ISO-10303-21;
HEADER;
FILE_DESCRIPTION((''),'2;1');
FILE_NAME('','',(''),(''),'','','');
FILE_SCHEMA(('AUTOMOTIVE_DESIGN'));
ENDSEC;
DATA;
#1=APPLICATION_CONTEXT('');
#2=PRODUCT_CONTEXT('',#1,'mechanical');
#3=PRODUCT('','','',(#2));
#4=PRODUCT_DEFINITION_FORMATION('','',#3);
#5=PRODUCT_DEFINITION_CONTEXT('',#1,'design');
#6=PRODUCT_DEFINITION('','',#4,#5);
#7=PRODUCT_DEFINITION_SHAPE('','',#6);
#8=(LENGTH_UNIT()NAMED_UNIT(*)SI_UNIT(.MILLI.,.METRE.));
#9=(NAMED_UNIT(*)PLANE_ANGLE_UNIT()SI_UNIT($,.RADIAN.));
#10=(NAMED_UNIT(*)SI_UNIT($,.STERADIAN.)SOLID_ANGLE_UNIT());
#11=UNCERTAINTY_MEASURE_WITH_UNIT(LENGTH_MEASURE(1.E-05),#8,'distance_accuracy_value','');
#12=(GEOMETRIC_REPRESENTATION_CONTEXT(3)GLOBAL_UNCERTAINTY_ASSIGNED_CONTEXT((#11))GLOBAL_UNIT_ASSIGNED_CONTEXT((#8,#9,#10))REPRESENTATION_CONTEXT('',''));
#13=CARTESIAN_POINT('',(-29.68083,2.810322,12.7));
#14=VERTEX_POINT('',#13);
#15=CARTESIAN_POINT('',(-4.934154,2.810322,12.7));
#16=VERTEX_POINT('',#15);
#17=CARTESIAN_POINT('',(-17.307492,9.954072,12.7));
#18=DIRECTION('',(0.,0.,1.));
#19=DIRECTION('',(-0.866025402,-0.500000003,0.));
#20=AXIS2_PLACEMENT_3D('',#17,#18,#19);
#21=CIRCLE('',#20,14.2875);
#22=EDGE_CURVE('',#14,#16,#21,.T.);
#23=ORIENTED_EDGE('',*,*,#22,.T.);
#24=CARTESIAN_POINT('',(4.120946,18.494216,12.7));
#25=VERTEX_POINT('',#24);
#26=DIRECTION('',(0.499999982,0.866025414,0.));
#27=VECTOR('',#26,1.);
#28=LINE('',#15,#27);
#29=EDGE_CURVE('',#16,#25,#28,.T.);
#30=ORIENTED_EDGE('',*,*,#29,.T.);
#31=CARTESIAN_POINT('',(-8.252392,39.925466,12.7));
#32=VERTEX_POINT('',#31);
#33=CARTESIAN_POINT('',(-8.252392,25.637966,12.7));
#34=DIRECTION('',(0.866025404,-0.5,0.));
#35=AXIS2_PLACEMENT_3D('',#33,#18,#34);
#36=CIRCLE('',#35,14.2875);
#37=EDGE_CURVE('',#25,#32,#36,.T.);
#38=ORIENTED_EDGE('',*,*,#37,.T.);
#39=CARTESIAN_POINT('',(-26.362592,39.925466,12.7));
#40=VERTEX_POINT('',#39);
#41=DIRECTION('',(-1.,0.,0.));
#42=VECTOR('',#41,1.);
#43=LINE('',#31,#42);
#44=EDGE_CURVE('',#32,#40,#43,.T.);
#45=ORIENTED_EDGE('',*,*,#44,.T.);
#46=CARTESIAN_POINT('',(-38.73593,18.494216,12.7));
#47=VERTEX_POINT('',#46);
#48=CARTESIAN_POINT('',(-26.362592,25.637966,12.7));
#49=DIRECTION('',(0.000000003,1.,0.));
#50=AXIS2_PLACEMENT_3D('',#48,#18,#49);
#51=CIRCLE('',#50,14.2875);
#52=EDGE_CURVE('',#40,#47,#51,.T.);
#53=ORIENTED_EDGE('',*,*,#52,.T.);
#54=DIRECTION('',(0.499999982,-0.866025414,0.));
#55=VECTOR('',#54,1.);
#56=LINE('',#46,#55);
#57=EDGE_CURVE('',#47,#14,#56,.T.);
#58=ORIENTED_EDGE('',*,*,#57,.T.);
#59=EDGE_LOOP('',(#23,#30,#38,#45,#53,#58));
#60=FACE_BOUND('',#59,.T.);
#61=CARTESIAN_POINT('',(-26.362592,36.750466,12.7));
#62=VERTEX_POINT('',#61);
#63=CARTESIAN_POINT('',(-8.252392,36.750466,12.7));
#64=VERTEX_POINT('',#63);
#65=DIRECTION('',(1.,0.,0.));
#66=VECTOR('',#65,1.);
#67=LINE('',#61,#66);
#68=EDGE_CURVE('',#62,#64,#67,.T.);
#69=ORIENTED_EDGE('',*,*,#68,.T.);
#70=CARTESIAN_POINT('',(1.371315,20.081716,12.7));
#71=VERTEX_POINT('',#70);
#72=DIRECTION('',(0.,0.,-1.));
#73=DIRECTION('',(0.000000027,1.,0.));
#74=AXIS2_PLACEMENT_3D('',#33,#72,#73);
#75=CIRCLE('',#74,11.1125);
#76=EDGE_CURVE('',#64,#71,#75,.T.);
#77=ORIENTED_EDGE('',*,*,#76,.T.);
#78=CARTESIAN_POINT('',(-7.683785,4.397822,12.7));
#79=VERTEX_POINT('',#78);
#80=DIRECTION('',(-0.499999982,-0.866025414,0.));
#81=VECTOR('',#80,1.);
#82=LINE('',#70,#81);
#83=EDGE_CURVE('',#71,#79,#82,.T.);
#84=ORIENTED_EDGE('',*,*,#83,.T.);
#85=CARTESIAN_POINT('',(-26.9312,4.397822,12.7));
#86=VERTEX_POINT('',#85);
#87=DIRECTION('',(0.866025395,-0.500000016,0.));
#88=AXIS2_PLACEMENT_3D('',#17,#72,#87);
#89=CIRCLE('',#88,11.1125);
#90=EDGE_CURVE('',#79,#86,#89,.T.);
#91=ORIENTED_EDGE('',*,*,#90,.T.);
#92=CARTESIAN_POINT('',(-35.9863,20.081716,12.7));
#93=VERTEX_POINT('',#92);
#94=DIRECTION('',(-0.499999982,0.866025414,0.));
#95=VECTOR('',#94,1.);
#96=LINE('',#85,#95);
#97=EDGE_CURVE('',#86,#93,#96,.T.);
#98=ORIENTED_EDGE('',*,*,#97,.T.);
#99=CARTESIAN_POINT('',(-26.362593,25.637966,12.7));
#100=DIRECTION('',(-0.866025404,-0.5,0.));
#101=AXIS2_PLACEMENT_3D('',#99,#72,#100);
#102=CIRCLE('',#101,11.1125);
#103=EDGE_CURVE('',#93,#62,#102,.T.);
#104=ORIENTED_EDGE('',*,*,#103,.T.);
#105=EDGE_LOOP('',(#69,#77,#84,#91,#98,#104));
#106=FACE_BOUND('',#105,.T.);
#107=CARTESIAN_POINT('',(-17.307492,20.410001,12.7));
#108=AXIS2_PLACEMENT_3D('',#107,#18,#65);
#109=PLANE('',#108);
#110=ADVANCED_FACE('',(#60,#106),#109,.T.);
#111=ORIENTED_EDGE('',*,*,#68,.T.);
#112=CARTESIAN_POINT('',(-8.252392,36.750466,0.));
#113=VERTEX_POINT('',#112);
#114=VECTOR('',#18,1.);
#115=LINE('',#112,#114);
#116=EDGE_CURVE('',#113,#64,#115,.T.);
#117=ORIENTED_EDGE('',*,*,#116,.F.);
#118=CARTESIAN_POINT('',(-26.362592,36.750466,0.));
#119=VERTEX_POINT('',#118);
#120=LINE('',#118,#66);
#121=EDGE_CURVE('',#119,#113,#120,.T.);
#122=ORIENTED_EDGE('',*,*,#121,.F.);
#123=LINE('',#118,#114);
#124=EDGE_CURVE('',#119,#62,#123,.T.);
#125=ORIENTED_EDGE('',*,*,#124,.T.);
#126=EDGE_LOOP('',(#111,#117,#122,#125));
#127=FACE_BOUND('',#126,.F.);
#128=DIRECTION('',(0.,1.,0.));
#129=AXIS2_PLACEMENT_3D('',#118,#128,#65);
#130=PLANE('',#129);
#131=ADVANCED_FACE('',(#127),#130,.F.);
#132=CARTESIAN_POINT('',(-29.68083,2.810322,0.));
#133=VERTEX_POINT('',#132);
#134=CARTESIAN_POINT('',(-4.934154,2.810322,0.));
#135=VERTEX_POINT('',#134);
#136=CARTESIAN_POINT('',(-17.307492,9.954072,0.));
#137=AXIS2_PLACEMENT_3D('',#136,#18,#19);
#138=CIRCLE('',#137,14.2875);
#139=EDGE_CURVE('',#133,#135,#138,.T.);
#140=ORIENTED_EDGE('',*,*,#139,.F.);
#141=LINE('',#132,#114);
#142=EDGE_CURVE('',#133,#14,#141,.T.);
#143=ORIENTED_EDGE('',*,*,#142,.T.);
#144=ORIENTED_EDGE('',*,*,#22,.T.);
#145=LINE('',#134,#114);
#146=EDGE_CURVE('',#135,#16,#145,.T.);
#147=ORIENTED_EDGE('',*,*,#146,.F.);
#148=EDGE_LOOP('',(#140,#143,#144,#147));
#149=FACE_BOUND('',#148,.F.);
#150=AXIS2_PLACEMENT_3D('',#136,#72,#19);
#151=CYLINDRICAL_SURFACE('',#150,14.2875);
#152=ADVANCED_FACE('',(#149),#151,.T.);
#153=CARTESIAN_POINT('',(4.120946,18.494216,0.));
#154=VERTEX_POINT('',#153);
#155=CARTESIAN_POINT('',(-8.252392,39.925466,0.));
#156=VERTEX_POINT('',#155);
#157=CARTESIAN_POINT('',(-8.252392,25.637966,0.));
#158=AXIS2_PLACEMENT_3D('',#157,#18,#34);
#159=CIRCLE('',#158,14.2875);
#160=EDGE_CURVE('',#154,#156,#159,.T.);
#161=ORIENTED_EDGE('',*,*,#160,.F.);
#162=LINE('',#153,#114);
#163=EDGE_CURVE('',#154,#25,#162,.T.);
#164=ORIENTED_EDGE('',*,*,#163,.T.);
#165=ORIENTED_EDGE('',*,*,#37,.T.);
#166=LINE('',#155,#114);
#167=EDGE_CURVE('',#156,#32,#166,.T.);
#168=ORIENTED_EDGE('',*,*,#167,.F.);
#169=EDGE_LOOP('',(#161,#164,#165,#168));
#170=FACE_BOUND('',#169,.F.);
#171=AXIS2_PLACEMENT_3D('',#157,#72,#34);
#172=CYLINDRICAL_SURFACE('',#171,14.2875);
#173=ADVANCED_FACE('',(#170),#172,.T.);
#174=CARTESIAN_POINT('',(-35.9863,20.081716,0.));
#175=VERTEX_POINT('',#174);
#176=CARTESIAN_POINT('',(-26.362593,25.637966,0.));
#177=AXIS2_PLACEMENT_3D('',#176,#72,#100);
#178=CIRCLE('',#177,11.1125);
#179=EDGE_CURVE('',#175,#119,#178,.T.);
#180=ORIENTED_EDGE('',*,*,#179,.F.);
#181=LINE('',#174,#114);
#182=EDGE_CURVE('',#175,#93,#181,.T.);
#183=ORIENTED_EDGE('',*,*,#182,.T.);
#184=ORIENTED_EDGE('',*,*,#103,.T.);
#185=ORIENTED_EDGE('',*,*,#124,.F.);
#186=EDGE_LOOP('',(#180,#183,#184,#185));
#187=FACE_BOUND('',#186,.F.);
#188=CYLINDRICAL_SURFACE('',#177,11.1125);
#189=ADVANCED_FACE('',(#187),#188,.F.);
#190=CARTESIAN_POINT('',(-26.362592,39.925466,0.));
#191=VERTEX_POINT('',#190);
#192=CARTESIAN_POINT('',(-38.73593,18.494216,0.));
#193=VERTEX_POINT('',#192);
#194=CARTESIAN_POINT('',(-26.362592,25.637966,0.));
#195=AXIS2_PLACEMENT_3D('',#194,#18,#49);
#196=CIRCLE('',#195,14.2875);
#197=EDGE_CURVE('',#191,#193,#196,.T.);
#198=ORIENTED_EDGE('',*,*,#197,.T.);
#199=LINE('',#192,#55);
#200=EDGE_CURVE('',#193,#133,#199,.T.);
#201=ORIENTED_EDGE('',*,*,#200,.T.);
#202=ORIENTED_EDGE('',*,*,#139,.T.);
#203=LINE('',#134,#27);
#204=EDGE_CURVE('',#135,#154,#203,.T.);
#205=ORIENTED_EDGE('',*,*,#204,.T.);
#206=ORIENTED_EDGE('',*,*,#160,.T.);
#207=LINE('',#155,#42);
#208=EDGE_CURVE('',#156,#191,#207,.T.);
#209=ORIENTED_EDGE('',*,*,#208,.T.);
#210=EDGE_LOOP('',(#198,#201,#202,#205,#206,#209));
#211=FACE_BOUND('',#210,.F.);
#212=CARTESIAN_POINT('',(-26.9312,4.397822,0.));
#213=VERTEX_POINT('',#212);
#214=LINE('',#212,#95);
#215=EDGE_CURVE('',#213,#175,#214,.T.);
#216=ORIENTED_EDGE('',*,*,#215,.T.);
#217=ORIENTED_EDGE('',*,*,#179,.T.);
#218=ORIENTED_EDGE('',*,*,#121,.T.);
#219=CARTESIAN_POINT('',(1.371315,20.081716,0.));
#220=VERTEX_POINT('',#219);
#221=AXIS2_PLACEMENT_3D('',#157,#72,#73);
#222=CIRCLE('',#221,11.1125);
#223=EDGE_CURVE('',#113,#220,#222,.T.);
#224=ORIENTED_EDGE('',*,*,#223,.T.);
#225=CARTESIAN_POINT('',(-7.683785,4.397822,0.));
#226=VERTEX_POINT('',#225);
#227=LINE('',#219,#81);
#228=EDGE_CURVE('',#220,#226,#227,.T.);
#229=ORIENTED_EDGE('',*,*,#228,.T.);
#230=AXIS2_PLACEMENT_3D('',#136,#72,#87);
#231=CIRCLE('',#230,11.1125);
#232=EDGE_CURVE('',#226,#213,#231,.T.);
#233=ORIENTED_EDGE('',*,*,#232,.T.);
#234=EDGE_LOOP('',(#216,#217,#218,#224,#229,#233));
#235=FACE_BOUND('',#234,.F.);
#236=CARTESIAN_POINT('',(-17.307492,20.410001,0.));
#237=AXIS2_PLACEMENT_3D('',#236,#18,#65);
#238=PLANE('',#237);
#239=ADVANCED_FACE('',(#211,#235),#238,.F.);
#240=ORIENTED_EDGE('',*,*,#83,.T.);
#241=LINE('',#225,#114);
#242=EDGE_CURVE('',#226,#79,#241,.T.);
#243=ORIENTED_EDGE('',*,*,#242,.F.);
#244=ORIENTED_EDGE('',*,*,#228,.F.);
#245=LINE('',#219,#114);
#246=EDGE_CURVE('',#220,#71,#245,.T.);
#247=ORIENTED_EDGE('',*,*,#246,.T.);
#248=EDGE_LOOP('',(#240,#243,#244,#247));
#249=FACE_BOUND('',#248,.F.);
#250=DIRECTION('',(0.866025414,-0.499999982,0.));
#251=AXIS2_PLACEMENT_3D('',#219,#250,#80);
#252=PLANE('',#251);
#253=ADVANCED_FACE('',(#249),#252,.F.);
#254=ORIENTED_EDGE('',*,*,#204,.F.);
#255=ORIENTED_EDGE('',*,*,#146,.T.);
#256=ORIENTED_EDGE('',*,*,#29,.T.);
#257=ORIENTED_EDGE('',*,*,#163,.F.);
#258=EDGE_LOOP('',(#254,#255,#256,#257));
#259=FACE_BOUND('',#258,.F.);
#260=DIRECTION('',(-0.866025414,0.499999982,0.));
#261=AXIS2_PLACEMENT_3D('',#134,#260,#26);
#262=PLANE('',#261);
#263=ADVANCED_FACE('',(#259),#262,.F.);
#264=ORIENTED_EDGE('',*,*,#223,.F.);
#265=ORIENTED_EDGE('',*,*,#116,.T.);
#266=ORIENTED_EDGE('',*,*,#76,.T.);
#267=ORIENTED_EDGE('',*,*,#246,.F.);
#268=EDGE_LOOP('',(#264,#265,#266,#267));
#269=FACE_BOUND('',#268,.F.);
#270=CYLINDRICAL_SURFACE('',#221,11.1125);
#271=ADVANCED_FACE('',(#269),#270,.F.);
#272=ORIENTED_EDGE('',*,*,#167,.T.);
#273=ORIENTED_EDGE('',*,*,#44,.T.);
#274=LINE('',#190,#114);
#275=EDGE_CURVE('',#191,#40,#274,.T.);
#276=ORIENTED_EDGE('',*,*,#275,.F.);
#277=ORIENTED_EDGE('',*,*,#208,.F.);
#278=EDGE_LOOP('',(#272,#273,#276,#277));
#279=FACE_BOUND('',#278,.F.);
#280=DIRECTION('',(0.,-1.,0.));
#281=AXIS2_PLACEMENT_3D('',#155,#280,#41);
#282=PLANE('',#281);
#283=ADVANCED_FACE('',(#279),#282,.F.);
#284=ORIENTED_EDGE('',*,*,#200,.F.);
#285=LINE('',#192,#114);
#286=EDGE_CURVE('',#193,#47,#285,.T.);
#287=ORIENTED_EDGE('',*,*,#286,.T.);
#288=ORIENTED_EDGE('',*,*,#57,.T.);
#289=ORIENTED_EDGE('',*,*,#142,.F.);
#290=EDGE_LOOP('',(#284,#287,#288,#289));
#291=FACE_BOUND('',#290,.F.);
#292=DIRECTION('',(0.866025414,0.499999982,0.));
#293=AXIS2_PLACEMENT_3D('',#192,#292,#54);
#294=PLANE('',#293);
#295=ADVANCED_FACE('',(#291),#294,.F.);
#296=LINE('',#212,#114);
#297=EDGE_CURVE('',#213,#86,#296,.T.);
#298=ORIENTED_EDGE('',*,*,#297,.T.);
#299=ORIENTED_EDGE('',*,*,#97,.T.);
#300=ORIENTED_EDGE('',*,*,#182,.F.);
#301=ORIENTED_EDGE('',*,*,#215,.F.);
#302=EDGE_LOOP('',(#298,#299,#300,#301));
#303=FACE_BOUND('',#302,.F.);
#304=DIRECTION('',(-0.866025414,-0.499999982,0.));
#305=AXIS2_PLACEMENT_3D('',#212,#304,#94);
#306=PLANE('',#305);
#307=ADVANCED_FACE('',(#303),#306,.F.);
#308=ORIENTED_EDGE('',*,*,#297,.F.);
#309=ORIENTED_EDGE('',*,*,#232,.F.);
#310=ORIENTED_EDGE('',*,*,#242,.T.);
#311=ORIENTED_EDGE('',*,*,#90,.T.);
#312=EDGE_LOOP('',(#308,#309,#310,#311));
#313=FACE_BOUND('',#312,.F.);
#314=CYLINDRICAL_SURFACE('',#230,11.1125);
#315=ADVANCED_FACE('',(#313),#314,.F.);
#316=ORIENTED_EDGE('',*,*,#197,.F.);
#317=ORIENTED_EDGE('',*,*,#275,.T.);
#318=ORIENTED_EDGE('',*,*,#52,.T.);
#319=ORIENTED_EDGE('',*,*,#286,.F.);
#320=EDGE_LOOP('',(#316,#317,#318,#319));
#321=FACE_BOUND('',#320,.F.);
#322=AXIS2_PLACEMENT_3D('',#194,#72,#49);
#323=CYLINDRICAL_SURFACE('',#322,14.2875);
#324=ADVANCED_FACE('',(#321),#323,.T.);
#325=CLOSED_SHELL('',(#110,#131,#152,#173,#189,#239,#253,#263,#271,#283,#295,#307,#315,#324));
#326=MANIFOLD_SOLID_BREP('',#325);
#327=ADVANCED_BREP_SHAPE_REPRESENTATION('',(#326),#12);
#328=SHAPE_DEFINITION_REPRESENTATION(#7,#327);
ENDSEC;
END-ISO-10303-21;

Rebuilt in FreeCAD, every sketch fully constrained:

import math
import FreeCAD as App
import Part
import Sketcher

V = App.Vector
Q = App.Units.Quantity

doc = App.newDocument("Part")
body = doc.addObject("PartDesign::Body", "Body")

# Sketch on XY plane
sketch1 = body.newObject("Sketcher::SketchObject", "Sketch")
sketch1.AttachmentSupport = (doc.getObject("XY_Plane"), [""])
sketch1.MapMode = "FlatFace"
sketch1.addGeometry(Part.LineSegment(V(-8, 40, 0), V(-26, 40, 0)), False)
sketch1.addGeometry(Part.ArcOfCircle(Part.Circle(V(-26, 26, 0), V(0, 0, 1), 14), math.radians(90), math.radians(210)), False)
sketch1.addGeometry(Part.LineSegment(V(-39, 18, 0), V(-30, 3, 0)), False)
sketch1.addGeometry(Part.ArcOfCircle(Part.Circle(V(-17, 10, 0), V(0, 0, 1), 14), math.radians(-150), math.radians(-30)), False)
sketch1.addGeometry(Part.LineSegment(V(-5, 3, 0), V(4, 18, 0)), False)
sketch1.addGeometry(Part.ArcOfCircle(Part.Circle(V(-8, 26, 0), V(0, 0, 1), 14), math.radians(-30), math.radians(90)), False)
sketch1.addGeometry(Part.LineSegment(V(-27, 4, 0), V(-36, 20, 0)), False)
sketch1.addGeometry(Part.ArcOfCircle(Part.Circle(V(-26, 26, 0), V(0, 0, 1), 11), math.radians(90), math.radians(210)), False)
sketch1.addGeometry(Part.LineSegment(V(-26, 37, 0), V(-8, 37, 0)), False)
sketch1.addGeometry(Part.ArcOfCircle(Part.Circle(V(-8, 26, 0), V(0, 0, 1), 11), math.radians(-30), math.radians(90)), False)
sketch1.addGeometry(Part.LineSegment(V(1, 20, 0), V(-8, 4, 0)), False)
sketch1.addGeometry(Part.ArcOfCircle(Part.Circle(V(-17, 10, 0), V(0, 0, 1), 11), math.radians(-150), math.radians(-30)), False)
sketch1.addConstraint(Sketcher.Constraint("Tangent", 0, 2, 1, 1))
sketch1.addConstraint(Sketcher.Constraint("Tangent", 1, 2, 2, 1))
sketch1.addConstraint(Sketcher.Constraint("Tangent", 2, 2, 3, 1))
sketch1.addConstraint(Sketcher.Constraint("Tangent", 3, 2, 4, 1))
sketch1.addConstraint(Sketcher.Constraint("Tangent", 4, 2, 5, 1))
sketch1.addConstraint(Sketcher.Constraint("Tangent", 5, 2, 0, 1))
sketch1.addConstraint(Sketcher.Constraint("Tangent", 6, 2, 7, 2))
sketch1.addConstraint(Sketcher.Constraint("Tangent", 7, 1, 8, 1))
sketch1.addConstraint(Sketcher.Constraint("Tangent", 8, 2, 9, 2))
sketch1.addConstraint(Sketcher.Constraint("Tangent", 9, 1, 10, 1))
sketch1.addConstraint(Sketcher.Constraint("Tangent", 10, 2, 11, 2))
sketch1.addConstraint(Sketcher.Constraint("Tangent", 11, 1, 6, 1))
sketch1.addConstraint(Sketcher.Constraint("Horizontal", 0))
sketch1.addConstraint(Sketcher.Constraint("Horizontal", 8))
sketch1.addConstraint(Sketcher.Constraint("Coincident", 7, 3, 1, 3))
sketch1.addConstraint(Sketcher.Constraint("Coincident", 9, 3, 5, 3))
sketch1.addConstraint(Sketcher.Constraint("Coincident", 11, 3, 3, 3))
sketch1.addConstraint(Sketcher.Constraint("Equal", 1, 3))
sketch1.addConstraint(Sketcher.Constraint("Equal", 3, 5))
sketch1.addConstraint(Sketcher.Constraint("Equal", 9, 11))
sketch1.addConstraint(Sketcher.Constraint("Horizontal", 2, 2, 3, 2))
sketch1.addConstraint(Sketcher.Constraint("Angle", 2, Q("-60.000001 deg")))
sketch1.addConstraint(Sketcher.Constraint("Radius", 1, Q("0.5625 in")))
sketch1.addConstraint(Sketcher.Constraint("Radius", 7, Q("0.4375 in")))
sketch1.addConstraint(Sketcher.Constraint("DistanceX", 0, 2, 0, 1, Q("0.713 in")))
sketch1.addConstraint(Sketcher.Constraint("DistanceX", 6, 2, -1, 1, Q("35.9863 mm")))
sketch1.addConstraint(Sketcher.Constraint("DistanceY", -1, 1, 10, 2, Q("4.397822 mm")))
pad1 = body.newObject("PartDesign::Pad", "Pad")
pad1.Profile = sketch1
pad1.Length = Q("0.5 in")

doc.recompute()
